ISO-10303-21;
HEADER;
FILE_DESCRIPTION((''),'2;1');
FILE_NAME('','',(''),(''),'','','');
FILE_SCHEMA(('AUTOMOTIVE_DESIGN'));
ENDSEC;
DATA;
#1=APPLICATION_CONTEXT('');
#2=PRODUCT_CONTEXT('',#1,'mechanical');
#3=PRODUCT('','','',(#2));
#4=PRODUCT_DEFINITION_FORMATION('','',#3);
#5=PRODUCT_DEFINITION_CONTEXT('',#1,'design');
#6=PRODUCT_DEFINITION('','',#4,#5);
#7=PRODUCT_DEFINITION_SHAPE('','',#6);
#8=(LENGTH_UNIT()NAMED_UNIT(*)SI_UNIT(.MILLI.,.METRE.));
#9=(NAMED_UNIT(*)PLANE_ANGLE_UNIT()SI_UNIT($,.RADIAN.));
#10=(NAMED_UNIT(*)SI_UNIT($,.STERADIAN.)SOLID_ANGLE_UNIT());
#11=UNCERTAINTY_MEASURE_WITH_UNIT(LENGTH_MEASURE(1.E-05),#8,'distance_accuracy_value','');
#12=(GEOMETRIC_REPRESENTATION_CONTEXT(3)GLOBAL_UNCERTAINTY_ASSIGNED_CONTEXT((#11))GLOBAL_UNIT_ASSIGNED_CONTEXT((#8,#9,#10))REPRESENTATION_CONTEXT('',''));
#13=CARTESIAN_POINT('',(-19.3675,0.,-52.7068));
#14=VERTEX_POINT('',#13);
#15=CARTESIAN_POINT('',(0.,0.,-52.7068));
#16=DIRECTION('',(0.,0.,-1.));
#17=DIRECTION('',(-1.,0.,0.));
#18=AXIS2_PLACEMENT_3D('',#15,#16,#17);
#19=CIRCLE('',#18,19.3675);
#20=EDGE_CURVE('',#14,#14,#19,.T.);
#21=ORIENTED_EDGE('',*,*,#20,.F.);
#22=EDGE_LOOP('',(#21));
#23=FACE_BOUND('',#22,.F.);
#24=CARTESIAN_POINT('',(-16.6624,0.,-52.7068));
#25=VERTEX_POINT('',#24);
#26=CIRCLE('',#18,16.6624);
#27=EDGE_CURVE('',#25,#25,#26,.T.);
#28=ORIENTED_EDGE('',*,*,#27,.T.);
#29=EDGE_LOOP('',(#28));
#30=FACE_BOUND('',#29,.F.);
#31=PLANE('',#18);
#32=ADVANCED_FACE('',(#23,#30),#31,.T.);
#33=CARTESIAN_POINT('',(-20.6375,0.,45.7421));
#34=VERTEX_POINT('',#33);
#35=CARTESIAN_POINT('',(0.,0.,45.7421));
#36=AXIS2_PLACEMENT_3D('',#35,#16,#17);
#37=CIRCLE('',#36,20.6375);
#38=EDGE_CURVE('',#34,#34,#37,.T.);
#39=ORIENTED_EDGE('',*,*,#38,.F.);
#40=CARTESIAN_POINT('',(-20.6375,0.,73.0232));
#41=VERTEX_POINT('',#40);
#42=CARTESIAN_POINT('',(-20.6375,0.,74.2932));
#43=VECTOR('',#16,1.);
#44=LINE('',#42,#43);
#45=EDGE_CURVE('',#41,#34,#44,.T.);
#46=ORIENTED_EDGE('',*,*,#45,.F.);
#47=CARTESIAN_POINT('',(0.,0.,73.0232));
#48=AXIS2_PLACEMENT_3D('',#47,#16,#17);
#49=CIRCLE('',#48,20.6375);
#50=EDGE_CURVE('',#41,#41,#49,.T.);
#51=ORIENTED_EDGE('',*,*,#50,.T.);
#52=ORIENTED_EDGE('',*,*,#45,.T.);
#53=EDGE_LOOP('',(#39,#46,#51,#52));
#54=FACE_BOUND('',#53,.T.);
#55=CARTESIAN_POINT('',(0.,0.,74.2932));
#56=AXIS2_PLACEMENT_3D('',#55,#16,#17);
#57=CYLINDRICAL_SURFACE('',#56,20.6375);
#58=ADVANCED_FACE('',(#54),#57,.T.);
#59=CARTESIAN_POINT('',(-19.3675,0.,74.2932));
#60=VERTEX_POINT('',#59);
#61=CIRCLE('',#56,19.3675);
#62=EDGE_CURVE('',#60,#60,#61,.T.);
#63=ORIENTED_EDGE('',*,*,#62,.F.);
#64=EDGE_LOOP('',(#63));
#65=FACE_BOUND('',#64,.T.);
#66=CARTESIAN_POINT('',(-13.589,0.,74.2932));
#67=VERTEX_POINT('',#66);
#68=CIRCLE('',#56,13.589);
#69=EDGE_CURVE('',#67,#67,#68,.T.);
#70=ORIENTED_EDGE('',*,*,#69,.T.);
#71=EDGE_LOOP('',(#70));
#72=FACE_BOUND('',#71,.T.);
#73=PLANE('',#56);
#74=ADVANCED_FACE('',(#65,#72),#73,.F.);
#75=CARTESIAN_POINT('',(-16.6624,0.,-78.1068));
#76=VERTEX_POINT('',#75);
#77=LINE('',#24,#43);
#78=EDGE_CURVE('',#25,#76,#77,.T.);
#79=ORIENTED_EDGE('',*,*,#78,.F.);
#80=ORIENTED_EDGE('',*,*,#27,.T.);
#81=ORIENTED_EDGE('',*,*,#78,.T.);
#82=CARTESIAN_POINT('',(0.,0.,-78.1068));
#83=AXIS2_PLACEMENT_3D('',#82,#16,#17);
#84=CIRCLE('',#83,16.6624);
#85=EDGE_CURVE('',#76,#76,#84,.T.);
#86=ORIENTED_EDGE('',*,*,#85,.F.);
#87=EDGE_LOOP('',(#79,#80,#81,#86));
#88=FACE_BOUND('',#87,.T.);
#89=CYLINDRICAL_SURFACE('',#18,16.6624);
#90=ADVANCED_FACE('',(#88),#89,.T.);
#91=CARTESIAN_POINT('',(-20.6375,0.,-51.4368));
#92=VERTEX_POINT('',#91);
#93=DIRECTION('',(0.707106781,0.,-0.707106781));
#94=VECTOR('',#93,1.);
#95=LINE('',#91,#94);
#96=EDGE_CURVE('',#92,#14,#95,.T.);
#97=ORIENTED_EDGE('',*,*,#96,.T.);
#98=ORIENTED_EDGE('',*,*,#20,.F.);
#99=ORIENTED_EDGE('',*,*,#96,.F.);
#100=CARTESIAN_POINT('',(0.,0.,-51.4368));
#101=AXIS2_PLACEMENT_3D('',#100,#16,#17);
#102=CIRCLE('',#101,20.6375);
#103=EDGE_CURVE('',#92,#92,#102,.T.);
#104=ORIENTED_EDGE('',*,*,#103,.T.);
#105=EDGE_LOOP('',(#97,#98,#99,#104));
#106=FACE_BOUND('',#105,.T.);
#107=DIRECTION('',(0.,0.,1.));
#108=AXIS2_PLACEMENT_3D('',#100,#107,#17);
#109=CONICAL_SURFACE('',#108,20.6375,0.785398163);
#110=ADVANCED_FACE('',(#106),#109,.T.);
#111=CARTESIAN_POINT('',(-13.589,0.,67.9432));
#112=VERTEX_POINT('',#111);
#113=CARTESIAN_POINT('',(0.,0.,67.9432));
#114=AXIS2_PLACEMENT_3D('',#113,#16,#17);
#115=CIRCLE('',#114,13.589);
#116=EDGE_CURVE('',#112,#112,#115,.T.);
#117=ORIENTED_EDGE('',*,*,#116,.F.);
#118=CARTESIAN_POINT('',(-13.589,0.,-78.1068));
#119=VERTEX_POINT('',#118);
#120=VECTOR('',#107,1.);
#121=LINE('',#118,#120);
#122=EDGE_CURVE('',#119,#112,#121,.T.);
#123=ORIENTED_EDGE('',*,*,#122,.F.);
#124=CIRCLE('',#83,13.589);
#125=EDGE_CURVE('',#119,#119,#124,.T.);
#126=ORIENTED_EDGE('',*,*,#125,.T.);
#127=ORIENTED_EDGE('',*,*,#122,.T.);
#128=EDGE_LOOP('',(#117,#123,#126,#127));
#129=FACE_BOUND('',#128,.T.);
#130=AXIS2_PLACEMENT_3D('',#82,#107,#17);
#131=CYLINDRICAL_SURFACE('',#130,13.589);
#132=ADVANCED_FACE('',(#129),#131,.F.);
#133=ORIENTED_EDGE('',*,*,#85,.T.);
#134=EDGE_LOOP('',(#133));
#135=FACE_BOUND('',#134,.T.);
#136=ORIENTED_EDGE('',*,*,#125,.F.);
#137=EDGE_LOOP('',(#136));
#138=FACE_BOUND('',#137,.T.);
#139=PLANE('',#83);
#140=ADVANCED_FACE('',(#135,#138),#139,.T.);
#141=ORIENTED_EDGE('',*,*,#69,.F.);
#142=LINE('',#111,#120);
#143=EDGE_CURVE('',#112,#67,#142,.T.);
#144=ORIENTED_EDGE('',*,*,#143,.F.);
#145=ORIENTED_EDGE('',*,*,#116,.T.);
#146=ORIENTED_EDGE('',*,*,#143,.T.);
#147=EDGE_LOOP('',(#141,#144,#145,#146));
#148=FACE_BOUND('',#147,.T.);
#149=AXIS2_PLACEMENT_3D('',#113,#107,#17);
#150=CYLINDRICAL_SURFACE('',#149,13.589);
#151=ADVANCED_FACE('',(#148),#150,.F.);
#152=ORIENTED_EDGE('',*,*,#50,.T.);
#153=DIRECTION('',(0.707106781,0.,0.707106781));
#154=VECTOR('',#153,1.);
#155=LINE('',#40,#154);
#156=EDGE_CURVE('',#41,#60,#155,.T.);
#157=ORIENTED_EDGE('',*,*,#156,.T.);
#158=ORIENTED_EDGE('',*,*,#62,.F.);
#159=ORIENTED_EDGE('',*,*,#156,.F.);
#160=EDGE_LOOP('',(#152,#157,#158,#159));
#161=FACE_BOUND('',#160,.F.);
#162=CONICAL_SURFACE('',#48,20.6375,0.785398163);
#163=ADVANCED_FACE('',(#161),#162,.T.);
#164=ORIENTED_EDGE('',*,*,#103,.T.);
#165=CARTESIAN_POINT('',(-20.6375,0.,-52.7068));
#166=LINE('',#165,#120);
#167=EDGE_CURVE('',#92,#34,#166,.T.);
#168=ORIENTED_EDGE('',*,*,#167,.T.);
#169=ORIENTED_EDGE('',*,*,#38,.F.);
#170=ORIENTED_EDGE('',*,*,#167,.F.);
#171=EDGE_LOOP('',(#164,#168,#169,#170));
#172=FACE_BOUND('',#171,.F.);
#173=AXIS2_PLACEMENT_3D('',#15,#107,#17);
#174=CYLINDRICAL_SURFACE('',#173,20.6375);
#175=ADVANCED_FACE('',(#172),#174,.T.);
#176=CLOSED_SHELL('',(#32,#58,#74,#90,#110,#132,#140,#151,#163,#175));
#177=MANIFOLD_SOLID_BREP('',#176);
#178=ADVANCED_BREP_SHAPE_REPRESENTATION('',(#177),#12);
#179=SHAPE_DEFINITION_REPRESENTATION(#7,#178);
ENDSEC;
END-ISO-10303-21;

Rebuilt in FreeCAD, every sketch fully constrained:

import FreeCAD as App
import Part
import Sketcher
Q = App.Units.Quantity


def edges_at(feature, points):
    """Names of the edges that pass closest to the given points."""
    edges = feature.Shape.Edges
    near = lambda p: min(range(len(edges)), key=lambda i: edges[i].distToShape(Part.Vertex(*p))[0])
    return sorted({f"Edge{near(p) + 1}" for p in points})

doc = App.newDocument("Part")
params = doc.addObject("Spreadsheet::Sheet", "Params")
for row, (alias, value) in enumerate([
    ("sketch1_height", "1 in"),
    ("sketch1_height2", "5 in"),
    ("sketch1_width", "0.121 in"),
    ("revolution_angle", "360 deg"),
    ("chamfer_size", "0.05 in"),
    ("chamfer2_size", "0.05 in"),
], start=1):
    params.set(f"A{row}", alias)
    params.set(f"B{row}", "=" + value)
    params.setAlias(f"B{row}", alias)

body = doc.addObject("PartDesign::Body", "Body")

sketch1 = body.newObject("Sketcher::SketchObject", "Sketch")
sketch1.AttachmentSupport = (doc.getObject("XZ_Plane"), [""])
sketch1.MapMode = "FlatFace"
sketch1.addGeometry(Part.LineSegment(App.Vector(-20.6, 74.3, 0), App.Vector(-13.6, 74.3, 0)), False)
sketch1.addGeometry(Part.LineSegment(App.Vector(-13.6, 74.3, 0), App.Vector(-13.6, -78.1, 0)), False)
sketch1.addGeometry(Part.LineSegment(App.Vector(-13.6, -78.1, 0), App.Vector(-16.7, -78.1, 0)), False)
sketch1.addGeometry(Part.LineSegment(App.Vector(-16.7, -78.1, 0), App.Vector(-16.7, -52.7, 0)), False)
sketch1.addGeometry(Part.LineSegment(App.Vector(-16.7, -52.7, 0), App.Vector(-20.6, -52.7, 0)), False)
sketch1.addGeometry(Part.LineSegment(App.Vector(-20.6, -52.7, 0), App.Vector(-20.6, 74.3, 0)), False)
sketch1.addConstraint(Sketcher.Constraint("Coincident", 0, 2, 1, 1))
sketch1.addConstraint(Sketcher.Constraint("Coincident", 1, 2, 2, 1))
sketch1.addConstraint(Sketcher.Constraint("Coincident", 2, 2, 3, 1))
sketch1.addConstraint(Sketcher.Constraint("Coincident", 3, 2, 4, 1))
sketch1.addConstraint(Sketcher.Constraint("Coincident", 4, 2, 5, 1))
sketch1.addConstraint(Sketcher.Constraint("Coincident", 5, 2, 0, 1))
sketch1.addConstraint(Sketcher.Constraint("Horizontal", 0))
sketch1.addConstraint(Sketcher.Constraint("Vertical", 1))
sketch1.addConstraint(Sketcher.Constraint("Horizontal", 2))
sketch1.addConstraint(Sketcher.Constraint("Vertical", 3))
sketch1.addConstraint(Sketcher.Constraint("Horizontal", 4))
sketch1.addConstraint(Sketcher.Constraint("Vertical", 5))
sketch1.addConstraint(Sketcher.Constraint("DistanceY", 3, 1, 3, 2, Q("1 in")))
sketch1.addConstraint(Sketcher.Constraint("DistanceY", 5, 1, 5, 2, Q("5 in")))
sketch1.addConstraint(Sketcher.Constraint("DistanceX", 2, 2, 2, 1, Q("0.121 in")))
sketch1.addConstraint(Sketcher.Constraint("DistanceX", 0, 2, -1, 1, Q("0.535 in")))
sketch1.addConstraint(Sketcher.Constraint("DistanceX", 4, 2, -1, 1, Q("0.8125 in")))
sketch1.addConstraint(Sketcher.Constraint("DistanceY", -1, 1, 0, 2, Q("74.2932 mm")))
sketch1.setExpression("Constraints[12]", "Params.sketch1_height")
sketch1.setExpression("Constraints[13]", "Params.sketch1_height2")
sketch1.setExpression("Constraints[14]", "Params.sketch1_width")
revolution = body.newObject("PartDesign::Revolution", "Revolution")
revolution.Profile = sketch1
revolution.ReferenceAxis = (sketch1, ["V_Axis"])
revolution.setExpression("Angle", "Params.revolution_angle")
doc.recompute()

chamfer = body.newObject("PartDesign::Chamfer", "Chamfer")
chamfer.Base = (revolution, edges_at(revolution, [(20.637, 0, -52.707)]))
chamfer.setExpression("Size", "Params.chamfer_size")
doc.recompute()

chamfer2 = body.newObject("PartDesign::Chamfer", "Chamfer001")
chamfer2.Base = (chamfer, edges_at(chamfer, [(20.637, 0, 74.293)]))
chamfer2.setExpression("Size", "Params.chamfer2_size")

doc.recompute()
